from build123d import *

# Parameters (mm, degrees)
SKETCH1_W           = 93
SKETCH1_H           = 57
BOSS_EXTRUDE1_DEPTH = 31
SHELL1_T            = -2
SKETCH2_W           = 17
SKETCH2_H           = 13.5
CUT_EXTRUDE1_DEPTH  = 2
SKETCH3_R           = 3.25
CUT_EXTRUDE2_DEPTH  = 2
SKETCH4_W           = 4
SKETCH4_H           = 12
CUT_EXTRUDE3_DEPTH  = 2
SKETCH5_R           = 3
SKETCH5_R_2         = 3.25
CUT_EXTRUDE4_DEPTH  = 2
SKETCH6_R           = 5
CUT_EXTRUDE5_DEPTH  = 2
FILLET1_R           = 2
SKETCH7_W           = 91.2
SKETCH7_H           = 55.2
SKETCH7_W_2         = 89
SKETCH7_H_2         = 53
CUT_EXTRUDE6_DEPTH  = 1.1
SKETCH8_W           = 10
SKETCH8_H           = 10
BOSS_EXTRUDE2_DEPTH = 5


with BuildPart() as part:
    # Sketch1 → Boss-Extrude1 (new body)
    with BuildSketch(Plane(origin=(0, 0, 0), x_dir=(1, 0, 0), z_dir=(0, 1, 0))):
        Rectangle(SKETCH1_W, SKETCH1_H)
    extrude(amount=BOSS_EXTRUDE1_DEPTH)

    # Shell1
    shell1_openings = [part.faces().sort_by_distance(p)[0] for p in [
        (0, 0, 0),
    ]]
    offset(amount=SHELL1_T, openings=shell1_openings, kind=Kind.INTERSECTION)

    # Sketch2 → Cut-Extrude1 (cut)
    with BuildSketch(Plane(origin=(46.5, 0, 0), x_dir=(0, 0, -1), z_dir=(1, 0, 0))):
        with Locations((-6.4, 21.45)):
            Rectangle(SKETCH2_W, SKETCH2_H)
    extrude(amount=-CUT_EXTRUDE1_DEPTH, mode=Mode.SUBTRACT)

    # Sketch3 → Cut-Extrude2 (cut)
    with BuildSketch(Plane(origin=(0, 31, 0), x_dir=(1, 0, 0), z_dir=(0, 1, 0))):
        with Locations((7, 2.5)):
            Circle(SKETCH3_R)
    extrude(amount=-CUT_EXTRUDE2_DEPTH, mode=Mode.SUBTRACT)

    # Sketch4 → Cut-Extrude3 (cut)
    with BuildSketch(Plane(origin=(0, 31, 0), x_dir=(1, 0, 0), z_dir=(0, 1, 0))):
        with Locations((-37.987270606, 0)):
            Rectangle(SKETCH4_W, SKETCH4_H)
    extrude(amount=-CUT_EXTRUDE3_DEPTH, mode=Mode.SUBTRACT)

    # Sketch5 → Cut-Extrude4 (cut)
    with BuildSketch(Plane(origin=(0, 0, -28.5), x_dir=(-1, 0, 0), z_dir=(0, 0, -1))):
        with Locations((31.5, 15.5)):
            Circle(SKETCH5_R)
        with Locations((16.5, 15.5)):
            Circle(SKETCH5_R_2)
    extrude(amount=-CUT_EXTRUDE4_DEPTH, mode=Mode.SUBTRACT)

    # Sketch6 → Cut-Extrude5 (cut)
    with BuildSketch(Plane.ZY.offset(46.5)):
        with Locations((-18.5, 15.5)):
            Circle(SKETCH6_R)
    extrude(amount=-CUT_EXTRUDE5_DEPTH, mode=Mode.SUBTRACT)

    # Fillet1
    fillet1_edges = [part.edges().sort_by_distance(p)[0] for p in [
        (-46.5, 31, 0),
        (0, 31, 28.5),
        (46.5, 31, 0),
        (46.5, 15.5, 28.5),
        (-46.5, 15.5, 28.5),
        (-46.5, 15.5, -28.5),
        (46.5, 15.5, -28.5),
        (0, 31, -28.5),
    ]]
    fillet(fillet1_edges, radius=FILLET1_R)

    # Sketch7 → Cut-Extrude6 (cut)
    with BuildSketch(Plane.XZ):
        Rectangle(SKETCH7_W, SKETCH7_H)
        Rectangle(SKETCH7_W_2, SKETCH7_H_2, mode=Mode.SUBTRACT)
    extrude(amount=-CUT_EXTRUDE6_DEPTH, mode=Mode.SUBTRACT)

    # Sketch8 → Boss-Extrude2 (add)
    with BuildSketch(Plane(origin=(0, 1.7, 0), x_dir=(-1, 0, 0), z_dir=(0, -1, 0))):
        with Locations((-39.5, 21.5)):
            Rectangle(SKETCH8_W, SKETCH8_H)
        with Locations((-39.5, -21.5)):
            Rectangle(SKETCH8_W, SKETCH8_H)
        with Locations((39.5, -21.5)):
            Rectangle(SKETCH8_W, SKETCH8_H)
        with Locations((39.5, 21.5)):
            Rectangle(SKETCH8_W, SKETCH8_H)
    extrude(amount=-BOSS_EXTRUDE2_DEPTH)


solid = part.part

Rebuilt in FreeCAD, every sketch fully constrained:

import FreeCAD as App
import Part
import Sketcher


def edges_at(feature, points):
    """Names of the edges that pass closest to the given points."""
    edges = feature.Shape.Edges
    near = lambda p: min(range(len(edges)), key=lambda i: edges[i].distToShape(Part.Vertex(*p))[0])
    return sorted({f"Edge{near(p) + 1}" for p in points})


def faces_at(feature, points):
    """Names of the faces that lie closest to the given points."""
    faces = feature.Shape.Faces
    near = lambda p: min(range(len(faces)), key=lambda i: faces[i].distToShape(Part.Vertex(*p))[0])
    return sorted({f"Face{near(p) + 1}" for p in points})

doc = App.newDocument("Part")
body = doc.addObject("PartDesign::Body", "Body")

# Sketch on XZ plane
sketch1 = doc.addObject("Sketcher::SketchObject", "Sketch")
body.addObject(sketch1)
sketch1.AttachmentSupport = (doc.XZ_Plane, [""])
sketch1.MapMode = "FlatFace"
sketch1.addGeometry(Part.LineSegment(App.Vector(-46.5, -28.5, 0), App.Vector(-46.5, 28.5, 0)), False)
sketch1.addGeometry(Part.LineSegment(App.Vector(-46.5, 28.5, 0), App.Vector(46.5, 28.5, 0)), False)
sketch1.addGeometry(Part.LineSegment(App.Vector(46.5, 28.5, 0), App.Vector(46.5, -28.5, 0)), False)
sketch1.addGeometry(Part.LineSegment(App.Vector(46.5, -28.5, 0), App.Vector(-46.5, -28.5, 0)), False)
sketch1.addConstraint(Sketcher.Constraint("Coincident", 0, 2, 1, 1))
sketch1.addConstraint(Sketcher.Constraint("Coincident", 1, 2, 2, 1))
sketch1.addConstraint(Sketcher.Constraint("Coincident", 2, 2, 3, 1))
sketch1.addConstraint(Sketcher.Constraint("Coincident", 3, 2, 0, 1))
sketch1.addConstraint(Sketcher.Constraint("Vertical", 0))
sketch1.addConstraint(Sketcher.Constraint("Horizontal", 1))
sketch1.addConstraint(Sketcher.Constraint("Vertical", 2))
sketch1.addConstraint(Sketcher.Constraint("Horizontal", 3))
sketch1.addConstraint(Sketcher.Constraint("Symmetric", 0, 2, 2, 2, -1, 1))
sketch1.addConstraint(Sketcher.Constraint("DistanceX", 1, 1, 1, 2, 93.0))
sketch1.addConstraint(Sketcher.Constraint("DistanceY", 0, 1, 0, 2, 57.0))
pad1 = doc.addObject("PartDesign::Pad", "Pad")
body.addObject(pad1)
pad1.Profile = sketch1
pad1.Length = 31
pad1.Reversed = True
doc.recompute()

thickness = doc.addObject("PartDesign::Thickness", "Thickness")
body.addObject(thickness)
thickness.Base = (pad1, faces_at(pad1, [(0, 0, 0)]))
thickness.Value = 2
thickness.Reversed = True
thickness.Join = "Intersection"

# Sketch on YZ plane
sketch2 = doc.addObject("Sketcher::SketchObject", "Sketch001")
body.addObject(sketch2)
sketch2.AttachmentSupport = (doc.YZ_Plane, [""])
sketch2.MapMode = "FlatFace"
sketch2.AttachmentOffset = App.Placement(App.Vector(0, 0, 46.5), App.Rotation())
sketch2.addGeometry(Part.LineSegment(App.Vector(28.2, 14.9, 0), App.Vector(14.7, 14.9, 0)), False)
sketch2.addGeometry(Part.LineSegment(App.Vector(14.7, 14.9, 0), App.Vector(14.7, -2.1, 0)), False)
sketch2.addGeometry(Part.LineSegment(App.Vector(14.7, -2.1, 0), App.Vector(28.2, -2.1, 0)), False)
sketch2.addGeometry(Part.LineSegment(App.Vector(28.2, -2.1, 0), App.Vector(28.2, 14.9, 0)), False)
sketch2.addConstraint(Sketcher.Constraint("Coincident", 0, 2, 1, 1))
sketch2.addConstraint(Sketcher.Constraint("Coincident", 1, 2, 2, 1))
sketch2.addConstraint(Sketcher.Constraint("Coincident", 2, 2, 3, 1))
sketch2.addConstraint(Sketcher.Constraint("Coincident", 3, 2, 0, 1))
sketch2.addConstraint(Sketcher.Constraint("Horizontal", 0))
sketch2.addConstraint(Sketcher.Constraint("Vertical", 1))
sketch2.addConstraint(Sketcher.Constraint("Horizontal", 2))
sketch2.addConstraint(Sketcher.Constraint("Vertical", 3))
sketch2.addConstraint(Sketcher.Constraint("DistanceY", 1, 2, 1, 1, 17.0))
sketch2.addConstraint(Sketcher.Constraint("DistanceX", 0, 2, 0, 1, 13.5))
sketch2.addConstraint(Sketcher.Constraint("DistanceX", -1, 1, 0, 2, 14.7))
sketch2.addConstraint(Sketcher.Constraint("DistanceY", -1, 1, 0, 2, 14.9))
pocket1 = doc.addObject("PartDesign::Pocket", "Pocket")
body.addObject(pocket1)
pocket1.Profile = sketch2
pocket1.Length = 2

# Sketch on XZ plane
sketch3 = doc.addObject("Sketcher::SketchObject", "Sketch002")
body.addObject(sketch3)
sketch3.AttachmentSupport = (doc.XZ_Plane, [""])
sketch3.MapMode = "FlatFace"
sketch3.AttachmentOffset = App.Placement(App.Vector(0, 0, -31), App.Rotation())
sketch3.addGeometry(Part.Circle(App.Vector(7, -2.5, 0), App.Vector(0, 0, 1), 3.25), False)
sketch3.addConstraint(Sketcher.Constraint("Diameter", 0, 6.5))
sketch3.addConstraint(Sketcher.Constraint("DistanceX", -1, 1, 0, 3, 7.0))
sketch3.addConstraint(Sketcher.Constraint("DistanceY", 0, 3, -1, 1, 2.5))
pocket2 = doc.addObject("PartDesign::Pocket", "Pocket001")
body.addObject(pocket2)
pocket2.Profile = sketch3
pocket2.Length = 2
pocket2.Reversed = True

# Sketch on XZ plane
sketch4 = doc.addObject("Sketcher::SketchObject", "Sketch003")
body.addObject(sketch4)
sketch4.AttachmentSupport = (doc.XZ_Plane, [""])
sketch4.MapMode = "FlatFace"
sketch4.AttachmentOffset = App.Placement(App.Vector(0, 0, -31), App.Rotation())
sketch4.addGeometry(Part.LineSegment(App.Vector(-39.987271, -6, 0), App.Vector(-39.987271, 6, 0)), False)
sketch4.addGeometry(Part.LineSegment(App.Vector(-39.987271, 6, 0), App.Vector(-35.987271, 6, 0)), False)
sketch4.addGeometry(Part.LineSegment(App.Vector(-35.987271, 6, 0), App.Vector(-35.987271, -6, 0)), False)
sketch4.addGeometry(Part.LineSegment(App.Vector(-35.987271, -6, 0), App.Vector(-39.987271, -6, 0)), False)
sketch4.addConstraint(Sketcher.Constraint("Coincident", 0, 2, 1, 1))
sketch4.addConstraint(Sketcher.Constraint("Coincident", 1, 2, 2, 1))
sketch4.addConstraint(Sketcher.Constraint("Coincident", 2, 2, 3, 1))
sketch4.addConstraint(Sketcher.Constraint("Coincident", 3, 2, 0, 1))
sketch4.addConstraint(Sketcher.Constraint("Vertical", 0))
sketch4.addConstraint(Sketcher.Constraint("Horizontal", 1))
sketch4.addConstraint(Sketcher.Constraint("Vertical", 2))
sketch4.addConstraint(Sketcher.Constraint("Horizontal", 3))
sketch4.addConstraint(Sketcher.Constraint("DistanceX", 1, 1, 1, 2, 4.0))
sketch4.addConstraint(Sketcher.Constraint("DistanceY", 0, 1, 0, 2, 12.0))
sketch4.addConstraint(Sketcher.Constraint("DistanceY", -1, 1, 0, 2, 6.0))
sketch4.addConstraint(Sketcher.Constraint("DistanceX", 0, 2, -1, 1, 39.987271))
pocket3 = doc.addObject("PartDesign::Pocket", "Pocket002")
body.addObject(pocket3)
pocket3.Profile = sketch4
pocket3.Length = 2
pocket3.Reversed = True

# Sketch on XY plane
sketch5 = doc.addObject("Sketcher::SketchObject", "Sketch004")
body.addObject(sketch5)
sketch5.AttachmentSupport = (doc.XY_Plane, [""])
sketch5.MapMode = "FlatFace"
sketch5.AttachmentOffset = App.Placement(App.Vector(0, 0, -28.5), App.Rotation())
sketch5.addGeometry(Part.Circle(App.Vector(-31.5, 15.5, 0), App.Vector(0, 0, 1), 3), False)
sketch5.addGeometry(Part.Circle(App.Vector(-16.5, 15.5, 0), App.Vector(0, 0, 1), 3.25), False)
sketch5.addConstraint(Sketcher.Constraint("Horizontal", 0, 3, 1, 3))
sketch5.addConstraint(Sketcher.Constraint("Diameter", 0, 6.0))
sketch5.addConstraint(Sketcher.Constraint("Diameter", 1, 6.5))
sketch5.addConstraint(Sketcher.Constraint("DistanceX", 0, 3, 1, 3, 15.0))
sketch5.addConstraint(Sketcher.Constraint("DistanceX", 0, 3, -1, 1, 31.5))
sketch5.addConstraint(Sketcher.Constraint("DistanceY", -1, 1, 0, 3, 15.5))
pocket4 = doc.addObject("PartDesign::Pocket", "Pocket003")
body.addObject(pocket4)
pocket4.Profile = sketch5
pocket4.Length = 2
pocket4.Reversed = True

# Sketch on YZ plane
sketch6 = doc.addObject("Sketcher::SketchObject", "Sketch005")
body.addObject(sketch6)
sketch6.AttachmentSupport = (doc.YZ_Plane, [""])
sketch6.MapMode = "FlatFace"
sketch6.AttachmentOffset = App.Placement(App.Vector(0, 0, -46.5), App.Rotation())
sketch6.addGeometry(Part.Circle(App.Vector(15.5, -18.5, 0), App.Vector(0, 0, 1), 5), False)
sketch6.addConstraint(Sketcher.Constraint("Diameter", 0, 10.0))
sketch6.addConstraint(Sketcher.Constraint("DistanceX", -1, 1, 0, 3, 15.5))
sketch6.addConstraint(Sketcher.Constraint("DistanceY", 0, 3, -1, 1, 18.5))
pocket5 = doc.addObject("PartDesign::Pocket", "Pocket004")
body.addObject(pocket5)
pocket5.Profile = sketch6
pocket5.Length = 2
pocket5.Reversed = True
doc.recompute()

fillet = doc.addObject("PartDesign::Fillet", "Fillet")
body.addObject(fillet)
fillet.Base = (pocket5, edges_at(pocket5, [
    (-46.5, 31, 0),
    (0, 31, 28.5),
    (46.5, 31, 0),
    (46.5, 15.5, 28.5),
    (-46.5, 15.5, 28.5),
    (-46.5, 15.5, -28.5),
    (46.5, 15.5, -28.5),
    (0, 31, -28.5),
]))
fillet.Radius = 2

# Sketch on XZ plane
sketch7 = doc.addObject("Sketcher::SketchObject", "Sketch006")
body.addObject(sketch7)
sketch7.AttachmentSupport = (doc.XZ_Plane, [""])
sketch7.MapMode = "FlatFace"
sketch7.addGeometry(Part.LineSegment(App.Vector(-45.6, 27.6, 0), App.Vector(-45.6, -27.6, 0)), False)
sketch7.addGeometry(Part.LineSegment(App.Vector(-45.6, -27.6, 0), App.Vector(45.6, -27.6, 0)), False)
sketch7.addGeometry(Part.LineSegment(App.Vector(45.6, -27.6, 0), App.Vector(45.6, 27.6, 0)), False)
sketch7.addGeometry(Part.LineSegment(App.Vector(45.6, 27.6, 0), App.Vector(-45.6, 27.6, 0)), False)
sketch7.addGeometry(Part.LineSegment(App.Vector(44.5, -26.5, 0), App.Vector(-44.5, -26.5, 0)), False)
sketch7.addGeometry(Part.LineSegment(App.Vector(-44.5, -26.5, 0), App.Vector(-44.5, 26.5, 0)), False)
sketch7.addGeometry(Part.LineSegment(App.Vector(-44.5, 26.5, 0), App.Vector(44.5, 26.5, 0)), False)
sketch7.addGeometry(Part.LineSegment(App.Vector(44.5, 26.5, 0), App.Vector(44.5, -26.5, 0)), False)
sketch7.addConstraint(Sketcher.Constraint("Coincident", 0, 2, 1, 1))
sketch7.addConstraint(Sketcher.Constraint("Coincident", 1, 2, 2, 1))
sketch7.addConstraint(Sketcher.Constraint("Coincident", 2, 2, 3, 1))
sketch7.addConstraint(Sketcher.Constraint("Coincident", 3, 2, 0, 1))
sketch7.addConstraint(Sketcher.Constraint("Coincident", 4, 2, 5, 1))
sketch7.addConstraint(Sketcher.Constraint("Coincident", 5, 2, 6, 1))
sketch7.addConstraint(Sketcher.Constraint("Coincident", 6, 2, 7, 1))
sketch7.addConstraint(Sketcher.Constraint("Coincident", 7, 2, 4, 1))
sketch7.addConstraint(Sketcher.Constraint("Vertical", 0))
sketch7.addConstraint(Sketcher.Constraint("Horizontal", 1))
sketch7.addConstraint(Sketcher.Constraint("Vertical", 2))
sketch7.addConstraint(Sketcher.Constraint("Horizontal", 3))
sketch7.addConstraint(Sketcher.Constraint("Horizontal", 4))
sketch7.addConstraint(Sketcher.Constraint("Vertical", 5))
sketch7.addConstraint(Sketcher.Constraint("Horizontal", 6))
sketch7.addConstraint(Sketcher.Constraint("Vertical", 7))
sketch7.addConstraint(Sketcher.Constraint("Symmetric", 0, 2, 2, 2, -1, 1))
sketch7.addConstraint(Sketcher.Constraint("Symmetric", 4, 2, 6, 2, -1, 1))
sketch7.addConstraint(Sketcher.Constraint("DistanceX", 4, 2, 4, 1, 89.0))
sketch7.addConstraint(Sketcher.Constraint("DistanceY", 5, 1, 5, 2, 53.0))
sketch7.addConstraint(Sketcher.Constraint("DistanceX", 1, 1, 1, 2, 91.2))
sketch7.addConstraint(Sketcher.Constraint("DistanceY", 0, 2, 0, 1, 55.2))
pocket6 = doc.addObject("PartDesign::Pocket", "Pocket005")
body.addObject(pocket6)
pocket6.Profile = sketch7
pocket6.Length = 1.1

# Sketch on XZ plane
sketch8 = doc.addObject("Sketcher::SketchObject", "Sketch007")
body.addObject(sketch8)
sketch8.AttachmentSupport = (doc.XZ_Plane, [""])
sketch8.MapMode = "FlatFace"
sketch8.AttachmentOffset = App.Placement(App.Vector(0, 0, -1.7), App.Rotation())
sketch8.addGeometry(Part.LineSegment(App.Vector(44.5, -26.5, 0), App.Vector(44.5, -16.5, 0)), False)
sketch8.addGeometry(Part.LineSegment(App.Vector(44.5, -16.5, 0), App.Vector(34.5, -16.5, 0)), False)
sketch8.addGeometry(Part.LineSegment(App.Vector(34.5, -16.5, 0), App.Vector(34.5, -26.5, 0)), False)
sketch8.addGeometry(Part.LineSegment(App.Vector(34.5, -26.5, 0), App.Vector(44.5, -26.5, 0)), False)
sketch8.addGeometry(Part.LineSegment(App.Vector(44.5, 16.5, 0), App.Vector(44.5, 26.5, 0)), False)
sketch8.addGeometry(Part.LineSegment(App.Vector(44.5, 26.5, 0), App.Vector(34.5, 26.5, 0)), False)
sketch8.addGeometry(Part.LineSegment(App.Vector(34.5, 26.5, 0), App.Vector(34.5, 16.5, 0)), False)
sketch8.addGeometry(Part.LineSegment(App.Vector(34.5, 16.5, 0), App.Vector(44.5, 16.5, 0)), False)
sketch8.addGeometry(Part.LineSegment(App.Vector(-34.5, 16.5, 0), App.Vector(-34.5, 26.5, 0)), False)
sketch8.addGeometry(Part.LineSegment(App.Vector(-34.5, 26.5, 0), App.Vector(-44.5, 26.5, 0)), False)
sketch8.addGeometry(Part.LineSegment(App.Vector(-44.5, 26.5, 0), App.Vector(-44.5, 16.5, 0)), False)
sketch8.addGeometry(Part.LineSegment(App.Vector(-44.5, 16.5, 0), App.Vector(-34.5, 16.5, 0)), False)
sketch8.addGeometry(Part.LineSegment(App.Vector(-34.5, -26.5, 0), App.Vector(-34.5, -16.5, 0)), False)
sketch8.addGeometry(Part.LineSegment(App.Vector(-34.5, -16.5, 0), App.Vector(-44.5, -16.5, 0)), False)
sketch8.addGeometry(Part.LineSegment(App.Vector(-44.5, -16.5, 0), App.Vector(-44.5, -26.5, 0)), False)
sketch8.addGeometry(Part.LineSegment(App.Vector(-44.5, -26.5, 0), App.Vector(-34.5, -26.5, 0)), False)
sketch8.addConstraint(Sketcher.Constraint("Coincident", 0, 2, 1, 1))
sketch8.addConstraint(Sketcher.Constraint("Coincident", 1, 2, 2, 1))
sketch8.addConstraint(Sketcher.Constraint("Coincident", 2, 2, 3, 1))
sketch8.addConstraint(Sketcher.Constraint("Coincident", 3, 2, 0, 1))
sketch8.addConstraint(Sketcher.Constraint("Coincident", 4, 2, 5, 1))
sketch8.addConstraint(Sketcher.Constraint("Coincident", 5, 2, 6, 1))
sketch8.addConstraint(Sketcher.Constraint("Coincident", 6, 2, 7, 1))
sketch8.addConstraint(Sketcher.Constraint("Coincident", 7, 2, 4, 1))
sketch8.addConstraint(Sketcher.Constraint("Coincident", 8, 2, 9, 1))
sketch8.addConstraint(Sketcher.Constraint("Coincident", 9, 2, 10, 1))
sketch8.addConstraint(Sketcher.Constraint("Coincident", 10, 2, 11, 1))
sketch8.addConstraint(Sketcher.Constraint("Coincident", 11, 2, 8, 1))
sketch8.addConstraint(Sketcher.Constraint("Coincident", 12, 2, 13, 1))
sketch8.addConstraint(Sketcher.Constraint("Coincident", 13, 2, 14, 1))
sketch8.addConstraint(Sketcher.Constraint("Coincident", 14, 2, 15, 1))
sketch8.addConstraint(Sketcher.Constraint("Coincident", 15, 2, 12, 1))
sketch8.addConstraint(Sketcher.Constraint("Vertical", 0))
sketch8.addConstraint(Sketcher.Constraint("Horizontal", 1))
sketch8.addConstraint(Sketcher.Constraint("Vertical", 2))
sketch8.addConstraint(Sketcher.Constraint("Horizontal", 3))
sketch8.addConstraint(Sketcher.Constraint("Vertical", 4))
sketch8.addConstraint(Sketcher.Constraint("Horizontal", 5))
sketch8.addConstraint(Sketcher.Constraint("Vertical", 6))
sketch8.addConstraint(Sketcher.Constraint("Horizontal", 7))
sketch8.addConstraint(Sketcher.Constraint("Vertical", 8))
sketch8.addConstraint(Sketcher.Constraint("Horizontal", 9))
sketch8.addConstraint(Sketcher.Constraint("Vertical", 10))
sketch8.addConstraint(Sketcher.Constraint("Horizontal", 11))
sketch8.addConstraint(Sketcher.Constraint("Vertical", 12))
sketch8.addConstraint(Sketcher.Constraint("Horizontal", 13))
sketch8.addConstraint(Sketcher.Constraint("Vertical", 14))
sketch8.addConstraint(Sketcher.Constraint("Horizontal", 15))
sketch8.addConstraint(Sketcher.Constraint("Symmetric", 2, 2, 8, 2, -1, 1))
sketch8.addConstraint(Sketcher.Constraint("Symmetric", 0, 2, 10, 2, -1, 1))
sketch8.addConstraint(Sketcher.Constraint("Symmetric", 6, 2, 12, 2, -1, 1))
sketch8.addConstraint(Sketcher.Constraint("Symmetric", 4, 2, 14, 2, -1, 1))
sketch8.addConstraint(Sketcher.Constraint("Symmetric", 5, 2, 8, 2, -2))
sketch8.addConstraint(Sketcher.Constraint("Symmetric", 7, 2, 10, 2, -2))
sketch8.addConstraint(Sketcher.Constraint("Equal", 15, 0))
sketch8.addConstraint(Sketcher.Constraint("DistanceX", 1, 2, 1, 1, 10.0))
sketch8.addConstraint(Sketcher.Constraint("DistanceY", 0, 2, 4, 2, 43.0))
sketch8.addConstraint(Sketcher.Constraint("DistanceX", 8, 2, 5, 2, 69.0))
pad2 = doc.addObject("PartDesign::Pad", "Pad001")
body.addObject(pad2)
pad2.Profile = sketch8
pad2.Length = 5
pad2.Reversed = True

doc.recompute()
